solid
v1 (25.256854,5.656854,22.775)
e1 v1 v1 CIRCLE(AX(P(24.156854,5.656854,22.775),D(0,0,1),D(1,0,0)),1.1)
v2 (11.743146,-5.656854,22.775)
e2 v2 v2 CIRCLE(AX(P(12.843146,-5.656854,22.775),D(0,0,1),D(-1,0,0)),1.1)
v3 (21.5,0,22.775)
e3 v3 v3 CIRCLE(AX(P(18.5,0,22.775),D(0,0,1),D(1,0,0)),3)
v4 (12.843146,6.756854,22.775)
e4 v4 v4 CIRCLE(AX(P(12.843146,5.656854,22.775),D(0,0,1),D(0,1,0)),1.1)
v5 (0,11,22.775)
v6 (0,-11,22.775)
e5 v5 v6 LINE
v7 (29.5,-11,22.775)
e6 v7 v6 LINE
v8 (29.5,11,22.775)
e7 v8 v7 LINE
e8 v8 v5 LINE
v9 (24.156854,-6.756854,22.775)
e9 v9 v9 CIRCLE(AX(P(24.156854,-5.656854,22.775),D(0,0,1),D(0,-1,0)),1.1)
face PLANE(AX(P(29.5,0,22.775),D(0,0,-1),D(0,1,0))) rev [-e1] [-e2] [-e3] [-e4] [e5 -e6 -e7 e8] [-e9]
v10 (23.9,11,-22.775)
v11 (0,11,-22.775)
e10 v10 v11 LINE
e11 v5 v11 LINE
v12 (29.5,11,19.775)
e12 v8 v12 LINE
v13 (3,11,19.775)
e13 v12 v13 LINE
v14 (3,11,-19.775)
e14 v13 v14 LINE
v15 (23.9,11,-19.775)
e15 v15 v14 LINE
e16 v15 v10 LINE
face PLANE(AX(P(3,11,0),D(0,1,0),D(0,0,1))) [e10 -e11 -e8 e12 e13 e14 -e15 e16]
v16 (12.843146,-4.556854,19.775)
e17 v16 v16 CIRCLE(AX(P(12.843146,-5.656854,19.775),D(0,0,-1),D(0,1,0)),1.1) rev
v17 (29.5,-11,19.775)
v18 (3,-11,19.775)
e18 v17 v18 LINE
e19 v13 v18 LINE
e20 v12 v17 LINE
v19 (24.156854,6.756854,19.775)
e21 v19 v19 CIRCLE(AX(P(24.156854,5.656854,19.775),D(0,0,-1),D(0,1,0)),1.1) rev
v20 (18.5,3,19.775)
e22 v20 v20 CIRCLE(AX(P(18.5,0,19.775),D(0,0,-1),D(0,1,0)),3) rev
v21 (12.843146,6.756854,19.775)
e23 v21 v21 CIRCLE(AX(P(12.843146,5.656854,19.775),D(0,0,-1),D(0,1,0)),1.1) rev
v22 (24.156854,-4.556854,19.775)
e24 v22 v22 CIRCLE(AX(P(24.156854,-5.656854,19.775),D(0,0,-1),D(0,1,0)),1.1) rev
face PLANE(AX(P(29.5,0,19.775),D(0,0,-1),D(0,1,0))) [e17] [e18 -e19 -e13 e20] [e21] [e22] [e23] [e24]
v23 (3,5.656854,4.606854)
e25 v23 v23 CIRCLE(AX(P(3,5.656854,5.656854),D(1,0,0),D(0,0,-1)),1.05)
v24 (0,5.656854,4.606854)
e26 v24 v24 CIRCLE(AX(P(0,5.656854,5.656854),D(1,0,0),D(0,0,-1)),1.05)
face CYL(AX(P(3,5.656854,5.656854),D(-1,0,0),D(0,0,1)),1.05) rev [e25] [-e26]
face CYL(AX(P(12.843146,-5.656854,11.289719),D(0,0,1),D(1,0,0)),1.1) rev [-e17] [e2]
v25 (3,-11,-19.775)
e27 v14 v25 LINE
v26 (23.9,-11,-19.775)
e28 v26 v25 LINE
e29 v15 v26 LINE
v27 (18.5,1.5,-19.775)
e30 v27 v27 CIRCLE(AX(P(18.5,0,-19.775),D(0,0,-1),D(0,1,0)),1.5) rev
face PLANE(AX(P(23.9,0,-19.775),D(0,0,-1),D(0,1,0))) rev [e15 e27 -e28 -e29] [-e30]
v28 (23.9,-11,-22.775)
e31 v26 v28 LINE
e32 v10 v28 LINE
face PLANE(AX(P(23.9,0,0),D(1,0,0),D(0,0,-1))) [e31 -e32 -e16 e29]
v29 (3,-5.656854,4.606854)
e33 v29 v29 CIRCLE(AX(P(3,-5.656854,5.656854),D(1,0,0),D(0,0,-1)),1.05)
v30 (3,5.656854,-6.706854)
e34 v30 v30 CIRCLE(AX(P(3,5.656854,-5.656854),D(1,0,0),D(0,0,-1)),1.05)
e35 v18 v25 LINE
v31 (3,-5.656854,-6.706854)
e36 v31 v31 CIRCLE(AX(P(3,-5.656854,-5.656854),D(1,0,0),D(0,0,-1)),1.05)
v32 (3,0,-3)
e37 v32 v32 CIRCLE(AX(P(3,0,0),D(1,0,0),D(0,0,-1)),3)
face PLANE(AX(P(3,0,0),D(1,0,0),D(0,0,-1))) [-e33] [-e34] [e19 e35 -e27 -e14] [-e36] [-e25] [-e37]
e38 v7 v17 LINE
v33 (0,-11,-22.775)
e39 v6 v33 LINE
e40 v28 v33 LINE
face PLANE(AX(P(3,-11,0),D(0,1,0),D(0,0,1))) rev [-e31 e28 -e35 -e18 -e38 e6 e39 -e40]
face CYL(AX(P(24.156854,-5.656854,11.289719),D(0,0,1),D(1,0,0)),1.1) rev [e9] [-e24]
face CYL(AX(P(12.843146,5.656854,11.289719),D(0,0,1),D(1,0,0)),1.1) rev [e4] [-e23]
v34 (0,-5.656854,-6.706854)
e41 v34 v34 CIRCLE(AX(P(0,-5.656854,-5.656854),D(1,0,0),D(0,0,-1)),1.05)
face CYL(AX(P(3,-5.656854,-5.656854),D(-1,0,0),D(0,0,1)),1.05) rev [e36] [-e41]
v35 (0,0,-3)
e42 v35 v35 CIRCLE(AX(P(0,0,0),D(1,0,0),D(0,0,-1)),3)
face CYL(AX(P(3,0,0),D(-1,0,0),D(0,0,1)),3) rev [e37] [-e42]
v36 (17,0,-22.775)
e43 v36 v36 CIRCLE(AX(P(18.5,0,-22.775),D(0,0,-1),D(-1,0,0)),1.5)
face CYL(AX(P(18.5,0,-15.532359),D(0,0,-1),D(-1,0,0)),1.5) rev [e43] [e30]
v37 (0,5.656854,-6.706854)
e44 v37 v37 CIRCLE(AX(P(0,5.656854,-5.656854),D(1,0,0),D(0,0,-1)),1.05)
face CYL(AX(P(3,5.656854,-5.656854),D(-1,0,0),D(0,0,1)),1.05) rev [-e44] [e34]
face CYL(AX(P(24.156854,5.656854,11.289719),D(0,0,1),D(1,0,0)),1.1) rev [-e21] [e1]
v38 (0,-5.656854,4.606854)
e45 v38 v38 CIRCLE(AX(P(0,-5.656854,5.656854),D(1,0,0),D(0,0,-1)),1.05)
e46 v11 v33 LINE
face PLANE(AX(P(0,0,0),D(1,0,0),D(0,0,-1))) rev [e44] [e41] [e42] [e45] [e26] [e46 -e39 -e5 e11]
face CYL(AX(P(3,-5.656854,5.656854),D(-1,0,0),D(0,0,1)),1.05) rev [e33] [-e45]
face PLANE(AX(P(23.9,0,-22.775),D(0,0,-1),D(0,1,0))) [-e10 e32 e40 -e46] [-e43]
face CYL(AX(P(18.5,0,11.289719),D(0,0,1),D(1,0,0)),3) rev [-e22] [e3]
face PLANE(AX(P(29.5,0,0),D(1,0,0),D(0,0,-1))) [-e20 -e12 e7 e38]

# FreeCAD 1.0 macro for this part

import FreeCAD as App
import Part
import Sketcher
from FreeCAD import Vector

doc = App.newDocument("Part")
body = doc.addObject("PartDesign::Body", "Body")

# Sketch on YZ plane
sketch1 = body.newObject("Sketcher::SketchObject", "Sketch")
sketch1.AttachmentSupport = (doc.getObject("YZ_Plane"), [""])
sketch1.MapMode = "FlatFace"
sketch1.addGeometry([
    Part.LineSegment(Vector(11, 19.8, 0), Vector(-11, 19.8, 0)),  # 0
    Part.LineSegment(Vector(-11, 19.8, 0), Vector(-11, -19.8, 0)),  # 1
    Part.LineSegment(Vector(-11, -19.8, 0), Vector(11, -19.8, 0)),  # 2
    Part.LineSegment(Vector(11, -19.8, 0), Vector(11, 19.8, 0)),  # 3
    Part.Circle(Vector(-5.7, 5.7, 0), Vector(0, 0, 1), 1.1),  # 4
    Part.Circle(Vector(-5.7, -5.7, 0), Vector(0, 0, 1), 1.1),  # 5
    Part.Circle(Vector(5.7, 5.7, 0), Vector(0, 0, 1), 1.1),  # 6
    Part.Circle(Vector(0, 0, 0), Vector(0, 0, 1), 3),  # 7
    Part.Circle(Vector(5.7, -5.7, 0), Vector(0, 0, 1), 1.1),  # 8
], False)
sketch1.addConstraint([
    Sketcher.Constraint("Coincident", 0, 2, 1, 1),
    Sketcher.Constraint("Coincident", 1, 2, 2, 1),
    Sketcher.Constraint("Coincident", 2, 2, 3, 1),
    Sketcher.Constraint("Coincident", 3, 2, 0, 1),
    Sketcher.Constraint("Horizontal", 0),
    Sketcher.Constraint("Vertical", 1),
    Sketcher.Constraint("Horizontal", 2),
    Sketcher.Constraint("Vertical", 3),
    Sketcher.Constraint("Coincident", 7, 3, -1, 1),
    Sketcher.Constraint("Equal", 4, 5),
    Sketcher.Constraint("Equal", 5, 6),
    Sketcher.Constraint("Equal", 6, 8),
    Sketcher.Constraint("Symmetric", 5, 3, 6, 3, -1, 1),
    Sketcher.Constraint("Symmetric", 4, 3, 8, 3, -1, 1),
    Sketcher.Constraint("Symmetric", 0, 2, 2, 2, -1, 1),
    Sketcher.Constraint("Symmetric", 4, 3, 6, 3, -2),
    Sketcher.Constraint("Diameter", 7, 6.0),
    Sketcher.Constraint("Diameter", 4, 2.1),
    Sketcher.Constraint("DistanceX", 0, 2, 0, 1, 22.0),
    Sketcher.Constraint("DistanceY", 1, 2, 1, 1, 39.55),
    Sketcher.Constraint("DistanceY", 5, 3, 4, 3, 11.313708),
    Sketcher.Constraint("DistanceX", 4, 3, 6, 3, 11.313708),
])
pad1 = body.newObject("PartDesign::Pad", "Pad")
pad1.Profile = sketch1
pad1.Length = 3

# Sketch on YZ plane
sketch2 = body.newObject("Sketcher::SketchObject", "Sketch001")
sketch2.AttachmentSupport = (doc.getObject("YZ_Plane"), [""])
sketch2.MapMode = "FlatFace"
sketch2.addGeometry([
    Part.LineSegment(Vector(11, 22.8, 0), Vector(-11, 22.8, 0)),
    Part.LineSegment(Vector(-11, 22.8, 0), Vector(-11, 19.8, 0)),
    Part.LineSegment(Vector(-11, 19.8, 0), Vector(11, 19.8, 0)),
    Part.LineSegment(Vector(11, 19.8, 0), Vector(11, 22.8, 0)),
], False)
sketch2.addConstraint([
    Sketcher.Constraint("Coincident", 0, 2, 1, 1),
    Sketcher.Constraint("Coincident", 1, 2, 2, 1),
    Sketcher.Constraint("Coincident", 2, 2, 3, 1),
    Sketcher.Constraint("Coincident", 3, 2, 0, 1),
    Sketcher.Constraint("Horizontal", 0),
    Sketcher.Constraint("Vertical", 1),
    Sketcher.Constraint("Horizontal", 2),
    Sketcher.Constraint("Vertical", 3),
    Sketcher.Constraint("DistanceX", 0, 2, 0, 1, 22.0),
    Sketcher.Constraint("DistanceY", 1, 2, 1, 1, 3.0),
    Sketcher.Constraint("DistanceX", 0, 2, -1, 1, 11.0),
    Sketcher.Constraint("DistanceY", -1, 1, 0, 2, 22.775),
])
pad2 = body.newObject("PartDesign::Pad", "Pad001")
pad2.Profile = sketch2
pad2.Length = 29.5

# Sketch on YZ plane
sketch3 = body.newObject("Sketcher::SketchObject", "Sketch002")
sketch3.AttachmentSupport = (doc.getObject("YZ_Plane"), [""])
sketch3.MapMode = "FlatFace"
sketch3.addGeometry([
    Part.LineSegment(Vector(11, -19.8, 0), Vector(-11, -19.8, 0)),
    Part.LineSegment(Vector(-11, -19.8, 0), Vector(-11, -22.8, 0)),
    Part.LineSegment(Vector(-11, -22.8, 0), Vector(11, -22.8, 0)),
    Part.LineSegment(Vector(11, -22.8, 0), Vector(11, -19.8, 0)),
], False)
sketch3.addConstraint([
    Sketcher.Constraint("Coincident", 0, 2, 1, 1),
    Sketcher.Constraint("Coincident", 1, 2, 2, 1),
    Sketcher.Constraint("Coincident", 2, 2, 3, 1),
    Sketcher.Constraint("Coincident", 3, 2, 0, 1),
    Sketcher.Constraint("Horizontal", 0),
    Sketcher.Constraint("Vertical", 1),
    Sketcher.Constraint("Horizontal", 2),
    Sketcher.Constraint("Vertical", 3),
    Sketcher.Constraint("DistanceX", 0, 2, 0, 1, 22.0),
    Sketcher.Constraint("DistanceY", 1, 2, 1, 1, 3.0),
    Sketcher.Constraint("DistanceX", 0, 2, -1, 1, 11.0),
    Sketcher.Constraint("DistanceY", 0, 2, -1, 1, 19.775),
])
pad3 = body.newObject("PartDesign::Pad", "Pad002")
pad3.Profile = sketch3
pad3.Length = 23.9

# Sketch on XY plane
sketch4 = body.newObject("Sketcher::SketchObject", "Sketch003")
sketch4.AttachmentSupport = (doc.getObject("XY_Plane"), [""])
sketch4.MapMode = "FlatFace"
sketch4.AttachmentOffset = App.Placement(Vector(0, 0, 22.775), App.Rotation())
sketch4.addGeometry([
    Part.Circle(Vector(18.5, 0, 0), Vector(0, 0, 1), 3),
    Part.Circle(Vector(24.2, 5.7, 0), Vector(0, 0, 1), 1.1),
], False)
sketch4.addConstraint([
    Sketcher.Constraint("PointOnObject", 0, 3, -1),
    Sketcher.Constraint("Diameter", 0, 6.0),
    Sketcher.Constraint("Diameter", 1, 2.2),
    Sketcher.Constraint("DistanceX", -1, 1, 0, 3, 18.5),
    Sketcher.Constraint("DistanceX", -1, 1, 1, 3, 24.156854),
    Sketcher.Constraint("DistanceY", -1, 1, 1, 3, 5.656854),
])
pocket1 = body.newObject("PartDesign::Pocket", "Pocket")
pocket1.Profile = sketch4
pocket1.Length = 3
doc.recompute()

datumline = body.newObject("PartDesign::Line", "DatumLine")
datumline.Placement = App.Placement(Vector(18.5, 0, 0), App.Rotation(Vector(0, 0, 1), Vector(0, 0, 1)))
polarpattern = body.newObject("PartDesign::PolarPattern", "PolarPattern")
polarpattern.Originals = [pocket1]
polarpattern.Axis = (datumline, [""])
polarpattern.Angle = 360
polarpattern.Occurrences = 4
body.Tip = polarpattern

# Sketch on XY plane
sketch5 = body.newObject("Sketcher::SketchObject", "Sketch004")
sketch5.AttachmentSupport = (doc.getObject("XY_Plane"), [""])
sketch5.MapMode = "FlatFace"
sketch5.AttachmentOffset = App.Placement(Vector(0, 0, -22.775), App.Rotation())
sketch5.addGeometry(Part.Circle(Vector(18.5, 0, 0), Vector(0, 0, 1), 1.5), False)
sketch5.addConstraint([
    Sketcher.Constraint("PointOnObject", 0, 3, -1),
    Sketcher.Constraint("Diameter", 0, 3.0),
    Sketcher.Constraint("DistanceX", -1, 1, 0, 3, 18.5),
])
pocket2 = body.newObject("PartDesign::Pocket", "Pocket001")
pocket2.Profile = sketch5
pocket2.Length = 3
pocket2.Reversed = True

doc.recompute()
